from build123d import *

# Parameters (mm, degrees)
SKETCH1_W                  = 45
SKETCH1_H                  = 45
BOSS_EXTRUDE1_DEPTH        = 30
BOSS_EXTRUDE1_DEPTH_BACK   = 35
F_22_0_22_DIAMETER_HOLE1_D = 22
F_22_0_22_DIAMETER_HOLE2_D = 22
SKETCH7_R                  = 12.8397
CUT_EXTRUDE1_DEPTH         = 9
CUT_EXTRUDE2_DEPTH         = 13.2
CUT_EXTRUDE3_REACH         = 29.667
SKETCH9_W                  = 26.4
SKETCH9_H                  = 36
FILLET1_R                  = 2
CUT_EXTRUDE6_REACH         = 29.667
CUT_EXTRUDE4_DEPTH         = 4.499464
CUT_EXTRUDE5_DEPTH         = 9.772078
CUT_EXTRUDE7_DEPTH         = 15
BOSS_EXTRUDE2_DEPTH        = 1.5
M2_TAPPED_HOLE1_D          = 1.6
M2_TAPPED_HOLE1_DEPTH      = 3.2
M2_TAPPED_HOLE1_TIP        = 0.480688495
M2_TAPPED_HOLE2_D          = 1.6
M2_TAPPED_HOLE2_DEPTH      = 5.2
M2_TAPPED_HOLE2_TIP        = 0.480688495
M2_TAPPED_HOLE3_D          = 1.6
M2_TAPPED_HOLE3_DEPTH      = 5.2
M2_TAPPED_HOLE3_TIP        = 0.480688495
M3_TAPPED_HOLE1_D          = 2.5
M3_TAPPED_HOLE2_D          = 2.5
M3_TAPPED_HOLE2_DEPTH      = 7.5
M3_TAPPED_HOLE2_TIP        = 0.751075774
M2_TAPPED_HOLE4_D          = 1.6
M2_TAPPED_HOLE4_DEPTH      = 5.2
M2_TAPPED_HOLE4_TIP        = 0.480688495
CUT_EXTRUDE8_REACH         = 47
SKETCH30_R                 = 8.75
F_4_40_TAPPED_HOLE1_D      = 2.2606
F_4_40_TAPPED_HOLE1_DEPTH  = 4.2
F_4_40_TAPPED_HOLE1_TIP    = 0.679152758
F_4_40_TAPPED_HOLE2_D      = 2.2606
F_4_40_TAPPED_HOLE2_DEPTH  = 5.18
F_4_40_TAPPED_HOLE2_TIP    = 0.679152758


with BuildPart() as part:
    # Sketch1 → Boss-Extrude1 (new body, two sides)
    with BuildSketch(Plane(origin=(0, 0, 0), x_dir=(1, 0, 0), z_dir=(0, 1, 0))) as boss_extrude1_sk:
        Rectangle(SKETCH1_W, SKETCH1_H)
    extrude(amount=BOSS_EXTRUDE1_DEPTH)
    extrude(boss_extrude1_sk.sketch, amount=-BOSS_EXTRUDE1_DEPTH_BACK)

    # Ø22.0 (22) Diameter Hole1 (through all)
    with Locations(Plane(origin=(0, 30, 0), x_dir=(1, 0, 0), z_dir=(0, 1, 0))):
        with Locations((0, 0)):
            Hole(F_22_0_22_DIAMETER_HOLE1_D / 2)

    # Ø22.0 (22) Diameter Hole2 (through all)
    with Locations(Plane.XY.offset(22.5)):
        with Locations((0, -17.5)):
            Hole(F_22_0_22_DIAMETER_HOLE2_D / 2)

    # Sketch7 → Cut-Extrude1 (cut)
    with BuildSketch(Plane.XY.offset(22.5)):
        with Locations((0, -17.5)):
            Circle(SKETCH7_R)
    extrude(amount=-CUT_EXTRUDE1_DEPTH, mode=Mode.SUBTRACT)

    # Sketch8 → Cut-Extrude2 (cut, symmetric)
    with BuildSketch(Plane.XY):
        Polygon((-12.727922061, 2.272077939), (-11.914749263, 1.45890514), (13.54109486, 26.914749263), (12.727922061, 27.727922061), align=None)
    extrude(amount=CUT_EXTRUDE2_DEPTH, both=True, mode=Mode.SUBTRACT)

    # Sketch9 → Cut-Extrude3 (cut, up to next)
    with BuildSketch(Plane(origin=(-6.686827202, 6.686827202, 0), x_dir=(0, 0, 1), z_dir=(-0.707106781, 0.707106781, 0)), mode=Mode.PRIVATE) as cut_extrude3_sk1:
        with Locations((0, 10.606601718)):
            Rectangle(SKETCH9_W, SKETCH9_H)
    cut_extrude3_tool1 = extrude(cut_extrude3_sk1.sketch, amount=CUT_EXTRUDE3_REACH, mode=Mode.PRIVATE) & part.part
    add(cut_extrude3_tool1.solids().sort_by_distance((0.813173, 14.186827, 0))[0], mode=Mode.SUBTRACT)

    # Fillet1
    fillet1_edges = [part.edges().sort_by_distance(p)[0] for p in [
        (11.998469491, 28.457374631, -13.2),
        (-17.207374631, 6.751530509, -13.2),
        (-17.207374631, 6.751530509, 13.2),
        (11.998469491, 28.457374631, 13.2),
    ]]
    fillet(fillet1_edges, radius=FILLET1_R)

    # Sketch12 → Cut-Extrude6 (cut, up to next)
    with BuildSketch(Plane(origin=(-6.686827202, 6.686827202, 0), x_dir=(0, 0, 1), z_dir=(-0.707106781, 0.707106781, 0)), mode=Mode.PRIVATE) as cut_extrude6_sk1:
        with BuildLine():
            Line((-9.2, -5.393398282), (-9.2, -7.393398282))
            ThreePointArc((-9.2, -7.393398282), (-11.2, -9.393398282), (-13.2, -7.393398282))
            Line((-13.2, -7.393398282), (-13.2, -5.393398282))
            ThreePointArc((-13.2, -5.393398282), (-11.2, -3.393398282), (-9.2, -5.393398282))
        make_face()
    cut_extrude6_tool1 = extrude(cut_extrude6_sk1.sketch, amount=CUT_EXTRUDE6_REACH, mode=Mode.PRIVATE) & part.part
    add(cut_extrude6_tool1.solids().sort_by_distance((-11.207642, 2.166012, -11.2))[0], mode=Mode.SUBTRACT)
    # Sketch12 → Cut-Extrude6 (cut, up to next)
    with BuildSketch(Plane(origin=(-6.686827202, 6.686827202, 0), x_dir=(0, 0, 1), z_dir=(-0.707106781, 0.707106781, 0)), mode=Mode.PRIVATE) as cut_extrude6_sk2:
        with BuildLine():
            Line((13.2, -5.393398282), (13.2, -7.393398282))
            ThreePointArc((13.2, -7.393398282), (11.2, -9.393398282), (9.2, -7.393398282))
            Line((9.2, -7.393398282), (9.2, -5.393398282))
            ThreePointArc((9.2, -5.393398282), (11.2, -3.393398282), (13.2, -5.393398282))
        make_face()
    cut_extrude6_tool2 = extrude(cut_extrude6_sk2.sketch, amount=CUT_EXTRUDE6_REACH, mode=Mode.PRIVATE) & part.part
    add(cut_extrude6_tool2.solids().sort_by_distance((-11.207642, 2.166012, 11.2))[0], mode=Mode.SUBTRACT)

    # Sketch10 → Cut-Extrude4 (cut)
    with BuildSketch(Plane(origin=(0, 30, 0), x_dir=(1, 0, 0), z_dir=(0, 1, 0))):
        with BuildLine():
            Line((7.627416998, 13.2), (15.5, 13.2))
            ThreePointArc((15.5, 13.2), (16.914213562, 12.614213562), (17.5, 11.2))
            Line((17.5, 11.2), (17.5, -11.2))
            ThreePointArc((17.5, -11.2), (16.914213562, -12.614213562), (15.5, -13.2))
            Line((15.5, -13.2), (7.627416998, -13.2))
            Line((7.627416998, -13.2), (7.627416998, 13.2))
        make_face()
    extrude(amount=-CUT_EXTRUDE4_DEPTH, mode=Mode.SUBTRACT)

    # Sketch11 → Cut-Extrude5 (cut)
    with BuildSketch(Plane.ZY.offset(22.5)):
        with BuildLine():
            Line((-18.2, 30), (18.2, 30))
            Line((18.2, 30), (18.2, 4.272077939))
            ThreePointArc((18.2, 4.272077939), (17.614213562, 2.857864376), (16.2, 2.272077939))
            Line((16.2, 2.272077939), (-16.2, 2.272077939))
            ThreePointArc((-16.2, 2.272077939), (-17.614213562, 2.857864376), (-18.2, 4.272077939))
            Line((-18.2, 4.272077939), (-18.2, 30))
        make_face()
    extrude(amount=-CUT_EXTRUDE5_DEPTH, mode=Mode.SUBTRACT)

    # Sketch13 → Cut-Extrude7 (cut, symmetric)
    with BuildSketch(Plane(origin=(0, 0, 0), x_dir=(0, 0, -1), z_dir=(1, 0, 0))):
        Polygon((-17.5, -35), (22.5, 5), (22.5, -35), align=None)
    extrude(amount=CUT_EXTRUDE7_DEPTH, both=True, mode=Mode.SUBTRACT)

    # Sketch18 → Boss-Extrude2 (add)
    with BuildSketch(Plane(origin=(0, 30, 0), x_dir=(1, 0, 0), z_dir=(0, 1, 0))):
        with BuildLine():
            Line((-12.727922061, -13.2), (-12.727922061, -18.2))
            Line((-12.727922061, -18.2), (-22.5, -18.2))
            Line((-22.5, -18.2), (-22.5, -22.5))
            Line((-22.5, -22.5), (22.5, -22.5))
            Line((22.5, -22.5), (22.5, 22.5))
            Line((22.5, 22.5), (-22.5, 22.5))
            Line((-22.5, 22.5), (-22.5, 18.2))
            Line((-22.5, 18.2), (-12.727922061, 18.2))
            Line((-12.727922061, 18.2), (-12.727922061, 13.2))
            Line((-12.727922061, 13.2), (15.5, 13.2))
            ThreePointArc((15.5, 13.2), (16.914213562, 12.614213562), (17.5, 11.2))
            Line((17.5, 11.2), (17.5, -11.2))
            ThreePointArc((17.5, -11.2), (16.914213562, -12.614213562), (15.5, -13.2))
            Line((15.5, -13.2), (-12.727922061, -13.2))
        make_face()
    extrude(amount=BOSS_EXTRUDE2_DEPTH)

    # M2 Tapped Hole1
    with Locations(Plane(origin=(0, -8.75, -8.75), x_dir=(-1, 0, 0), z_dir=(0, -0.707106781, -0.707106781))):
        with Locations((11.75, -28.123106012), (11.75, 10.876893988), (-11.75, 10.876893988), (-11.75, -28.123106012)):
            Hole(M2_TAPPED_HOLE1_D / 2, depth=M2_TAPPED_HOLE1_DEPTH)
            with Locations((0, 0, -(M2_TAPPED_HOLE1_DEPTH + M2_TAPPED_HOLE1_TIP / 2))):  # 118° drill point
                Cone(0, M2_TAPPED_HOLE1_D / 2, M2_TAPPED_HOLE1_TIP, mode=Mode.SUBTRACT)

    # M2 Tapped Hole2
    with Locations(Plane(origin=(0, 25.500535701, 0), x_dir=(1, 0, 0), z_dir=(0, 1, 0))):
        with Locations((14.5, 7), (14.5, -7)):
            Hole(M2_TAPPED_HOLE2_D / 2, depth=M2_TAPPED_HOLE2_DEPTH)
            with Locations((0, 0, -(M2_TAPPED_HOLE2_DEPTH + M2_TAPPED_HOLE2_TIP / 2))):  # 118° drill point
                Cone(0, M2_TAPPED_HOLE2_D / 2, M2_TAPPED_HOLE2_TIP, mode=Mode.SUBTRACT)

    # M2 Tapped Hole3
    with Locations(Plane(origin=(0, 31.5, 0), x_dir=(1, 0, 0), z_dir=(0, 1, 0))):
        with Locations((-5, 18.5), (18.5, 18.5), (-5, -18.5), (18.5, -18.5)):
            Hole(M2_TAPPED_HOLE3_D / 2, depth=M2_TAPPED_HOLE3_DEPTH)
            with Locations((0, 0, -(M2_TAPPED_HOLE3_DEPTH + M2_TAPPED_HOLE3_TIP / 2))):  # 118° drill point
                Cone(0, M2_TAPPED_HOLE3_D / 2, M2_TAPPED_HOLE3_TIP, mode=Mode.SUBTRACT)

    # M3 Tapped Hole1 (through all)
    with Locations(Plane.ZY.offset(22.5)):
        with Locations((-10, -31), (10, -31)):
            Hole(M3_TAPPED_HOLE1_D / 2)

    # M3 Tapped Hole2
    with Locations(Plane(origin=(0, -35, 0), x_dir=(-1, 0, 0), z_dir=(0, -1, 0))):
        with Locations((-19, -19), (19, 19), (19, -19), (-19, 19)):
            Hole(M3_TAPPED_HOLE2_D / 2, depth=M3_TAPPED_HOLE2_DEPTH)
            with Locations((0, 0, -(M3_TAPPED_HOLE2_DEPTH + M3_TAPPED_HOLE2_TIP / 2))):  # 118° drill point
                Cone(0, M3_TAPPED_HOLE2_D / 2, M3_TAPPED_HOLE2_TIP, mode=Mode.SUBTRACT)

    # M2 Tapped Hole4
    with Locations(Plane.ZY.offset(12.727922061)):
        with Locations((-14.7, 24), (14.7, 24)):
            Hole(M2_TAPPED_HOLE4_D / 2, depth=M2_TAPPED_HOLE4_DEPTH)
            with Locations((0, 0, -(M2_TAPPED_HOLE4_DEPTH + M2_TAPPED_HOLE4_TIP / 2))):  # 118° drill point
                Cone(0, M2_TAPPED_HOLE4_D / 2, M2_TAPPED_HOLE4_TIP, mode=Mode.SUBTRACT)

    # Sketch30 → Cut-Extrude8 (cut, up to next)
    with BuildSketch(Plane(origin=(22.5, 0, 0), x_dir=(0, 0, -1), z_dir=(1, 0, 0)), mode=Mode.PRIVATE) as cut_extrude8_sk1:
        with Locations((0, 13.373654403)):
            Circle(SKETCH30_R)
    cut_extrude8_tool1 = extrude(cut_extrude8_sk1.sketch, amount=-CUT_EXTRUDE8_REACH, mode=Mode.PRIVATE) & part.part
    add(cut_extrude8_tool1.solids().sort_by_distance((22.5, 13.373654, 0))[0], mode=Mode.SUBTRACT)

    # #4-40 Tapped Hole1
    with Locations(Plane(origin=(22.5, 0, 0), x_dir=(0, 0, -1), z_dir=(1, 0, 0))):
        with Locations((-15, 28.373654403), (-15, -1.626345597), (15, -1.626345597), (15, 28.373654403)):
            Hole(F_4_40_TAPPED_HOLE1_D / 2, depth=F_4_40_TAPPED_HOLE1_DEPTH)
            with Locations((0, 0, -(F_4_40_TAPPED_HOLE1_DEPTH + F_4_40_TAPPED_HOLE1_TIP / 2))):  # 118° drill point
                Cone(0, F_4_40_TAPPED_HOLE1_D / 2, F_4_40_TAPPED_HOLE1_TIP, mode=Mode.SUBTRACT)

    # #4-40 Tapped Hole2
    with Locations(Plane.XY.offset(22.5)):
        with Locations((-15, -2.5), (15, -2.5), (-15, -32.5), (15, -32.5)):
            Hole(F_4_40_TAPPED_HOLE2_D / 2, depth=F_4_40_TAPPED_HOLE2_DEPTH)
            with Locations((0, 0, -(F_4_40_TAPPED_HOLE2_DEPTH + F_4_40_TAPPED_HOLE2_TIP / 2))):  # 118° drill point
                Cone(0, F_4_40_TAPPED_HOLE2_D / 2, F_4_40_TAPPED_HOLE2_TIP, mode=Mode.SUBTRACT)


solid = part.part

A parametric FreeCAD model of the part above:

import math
import FreeCAD as App
import Part
import Sketcher
from FreeCAD import Vector
Q = App.Units.Quantity


def edges_at(feature, points):
    """Names of the edges that pass closest to the given points."""
    edges = feature.Shape.Edges
    near = lambda p: min(range(len(edges)), key=lambda i: edges[i].distToShape(Part.Vertex(*p))[0])
    return sorted({f"Edge{near(p) + 1}" for p in points})


def add_polygon(sketch, points):
    """Adds a closed chain of lines whose ends are joined by coincident constraints."""
    first, n = sketch.GeometryCount, len(points)
    for a, b in zip(points, points[1:] + points[:1]):
        sketch.addGeometry(Part.LineSegment(App.Vector(*a, 0), App.Vector(*b, 0)), False)
    for i in range(n):
        sketch.addConstraint(Sketcher.Constraint("Coincident", first + i, 2, first + (i + 1) % n, 1))

doc = App.newDocument("Part")
body = doc.addObject("PartDesign::Body", "Body")

sketch1 = body.newObject("Sketcher::SketchObject", "Sketch")
sketch1.AttachmentSupport = (doc.getObject("XZ_Plane"), [""])
sketch1.MapMode = "FlatFace"
add_polygon(sketch1, [(-22, -22), (-22, 22), (22, 22), (22, -22)])
sketch1.addConstraint(Sketcher.Constraint("Vertical", 0))
sketch1.addConstraint(Sketcher.Constraint("Horizontal", 1))
sketch1.addConstraint(Sketcher.Constraint("Vertical", 2))
sketch1.addConstraint(Sketcher.Constraint("Horizontal", 3))
sketch1.addConstraint(Sketcher.Constraint("Symmetric", 0, 2, 2, 2, -1, 1))
sketch1.addConstraint(Sketcher.Constraint("Equal", 3, 0))
sketch1.addConstraint(Sketcher.Constraint("DistanceX", 1, 1, 1, 2, Q("45 mm")))
pad1 = body.newObject("PartDesign::Pad", "Pad")
pad1.Profile = sketch1
pad1.Type = "TwoLengths"
pad1.Length = 30
pad1.Length2 = 35
pad1.Reversed = True

sketch2 = body.newObject("Sketcher::SketchObject", "Sketch001")
sketch2.AttachmentSupport = (doc.getObject("XZ_Plane"), [""])
sketch2.MapMode = "FlatFace"
sketch2.AttachmentOffset = App.Placement(Vector(0, 0, -30), App.Rotation())
sketch2.addGeometry(Part.Circle(Vector(0, 0, 0), Vector(0, 0, 1), 11), False)
sketch2.addConstraint(Sketcher.Constraint("Coincident", 0, 3, -1, 1))
sketch2.addConstraint(Sketcher.Constraint("Diameter", 0, Q("22 mm")))
doc.recompute()
hole = body.newObject("PartDesign::Hole", "Hole")
hole.Profile = sketch2
hole.ThreadType = "None"
hole.Diameter = 22
hole.DepthType = "ThroughAll"
hole.Reversed = True

sketch3 = body.newObject("Sketcher::SketchObject", "Sketch002")
sketch3.AttachmentSupport = (doc.getObject("XY_Plane"), [""])
sketch3.MapMode = "FlatFace"
sketch3.AttachmentOffset = App.Placement(Vector(0, 0, 22.5), App.Rotation())
sketch3.addGeometry(Part.Circle(Vector(0, -18, 0), Vector(0, 0, 1), 11), False)
sketch3.addConstraint(Sketcher.Constraint("PointOnObject", 0, 3, -2))
sketch3.addConstraint(Sketcher.Constraint("Diameter", 0, Q("22 mm")))
sketch3.addConstraint(Sketcher.Constraint("DistanceY", 0, 3, -1, 1, Q("17.5 mm")))
doc.recompute()
hole2 = body.newObject("PartDesign::Hole", "Hole001")
hole2.Profile = sketch3
hole2.ThreadType = "None"
hole2.Diameter = 22
hole2.DepthType = "ThroughAll"

sketch4 = body.newObject("Sketcher::SketchObject", "Sketch003")
sketch4.AttachmentSupport = (doc.getObject("XY_Plane"), [""])
sketch4.MapMode = "FlatFace"
sketch4.AttachmentOffset = App.Placement(Vector(0, 0, 22.5), App.Rotation())
sketch4.addGeometry(Part.Circle(Vector(0, -18, 0), Vector(0, 0, 1), 13), False)
sketch4.addConstraint(Sketcher.Constraint("PointOnObject", 0, 3, -2))
sketch4.addConstraint(Sketcher.Constraint("Diameter", 0, Q("25.6794 mm")))
sketch4.addConstraint(Sketcher.Constraint("DistanceY", 0, 3, -1, 1, Q("17.5 mm")))
pocket1 = body.newObject("PartDesign::Pocket", "Pocket")
pocket1.Profile = sketch4
pocket1.Length = 9

sketch5 = body.newObject("Sketcher::SketchObject", "Sketch004")
sketch5.AttachmentSupport = (doc.getObject("XY_Plane"), [""])
sketch5.MapMode = "FlatFace"
add_polygon(sketch5, [(-12.7, 2.3), (-11.9, 1.5), (13.5, 26.9), (12.7, 27.7)])
sketch5.addConstraint(Sketcher.Constraint("Perpendicular", 0, 1))
sketch5.addConstraint(Sketcher.Constraint("Perpendicular", 1, 2))
sketch5.addConstraint(Sketcher.Constraint("Perpendicular", 2, 3))
sketch5.addConstraint(Sketcher.Constraint("Angle", 0, Q("-45 deg")))
sketch5.addConstraint(Sketcher.Constraint("Distance", 1, Q("36 mm")))
sketch5.addConstraint(Sketcher.Constraint("Distance", 0, Q("1.15 mm")))
sketch5.addConstraint(Sketcher.Constraint("DistanceX", 0, 2, -1, 1, Q("11.914749 mm")))
sketch5.addConstraint(Sketcher.Constraint("DistanceY", -1, 1, 1, 2, Q("26.914749 mm")))
pocket2 = body.newObject("PartDesign::Pocket", "Pocket001")
pocket2.Profile = sketch5
pocket2.Length = 26.4
pocket2.Midplane = True

sketch6 = body.newObject("Sketcher::SketchObject", "Sketch005")
sketch6.Placement = App.Placement(Vector(-6.686827, 6.686827, 0), App.Rotation(Vector(0, 0, 1), Vector(0.707106781, 0.707106781, 0), Vector(-0.707106781, 0.707106781, 0), "ZXY"))
add_polygon(sketch6, [(-13, 29), (-13, -7), (13, -7), (13, 29)])
sketch6.addConstraint(Sketcher.Constraint("Vertical", 0))
sketch6.addConstraint(Sketcher.Constraint("Horizontal", 1))
sketch6.addConstraint(Sketcher.Constraint("Vertical", 2))
sketch6.addConstraint(Sketcher.Constraint("Horizontal", 3))
sketch6.addConstraint(Sketcher.Constraint("DistanceY", 0, 2, 0, 1, Q("36 mm")))
sketch6.addConstraint(Sketcher.Constraint("DistanceX", 1, 1, 1, 2, Q("26.4 mm")))
sketch6.addConstraint(Sketcher.Constraint("DistanceX", 0, 2, -1, 1, Q("13.2 mm")))
sketch6.addConstraint(Sketcher.Constraint("DistanceY", 0, 2, -1, 1, Q("7.393398 mm")))
pocket3 = body.newObject("PartDesign::Pocket", "Pocket002")
pocket3.Profile = sketch6
pocket3.Type = "UpToFirst"
pocket3.Reversed = True
doc.recompute()

fillet = body.newObject("PartDesign::Fillet", "Fillet")
fillet.Base = (pocket3, edges_at(pocket3, [
    (11.592, 28.864, -13.2),
    (-17.614, 7.158, -13.2),
    (-17.614, 7.158, 13.2),
    (11.592, 28.864, 13.2),
]))
fillet.Radius = 2

sketch7 = body.newObject("Sketcher::SketchObject", "Sketch006")
sketch7.Placement = App.Placement(Vector(-6.686827, 6.686827, 0), App.Rotation(Vector(0, 0, 1), Vector(0.707106781, 0.707106781, 0), Vector(-0.707106781, 0.707106781, 0), "ZXY"))
sketch7.addGeometry(Part.LineSegment(Vector(-9.2, -7.4, 0), Vector(-9.2, -5.4, 0)), False)
sketch7.addGeometry(Part.ArcOfCircle(Part.Circle(Vector(-11.2, -5.4, 0), Vector(0, 0, 1), 2), math.radians(0), math.radians(180)), False)
sketch7.addGeometry(Part.LineSegment(Vector(-13.2, -5.4, 0), Vector(-13.2, -7.4, 0)), False)
sketch7.addGeometry(Part.ArcOfCircle(Part.Circle(Vector(-11.2, -7.4, 0), Vector(0, 0, 1), 2), math.radians(180), math.radians(360)), False)
sketch7.addConstraint(Sketcher.Constraint("Tangent", 0, 2, 1, 1))
sketch7.addConstraint(Sketcher.Constraint("Tangent", 1, 2, 2, 1))
sketch7.addConstraint(Sketcher.Constraint("Tangent", 2, 2, 3, 1))
sketch7.addConstraint(Sketcher.Constraint("Tangent", 3, 2, 0, 1))
sketch7.addConstraint(Sketcher.Constraint("Vertical", 0))
sketch7.addConstraint(Sketcher.Constraint("Vertical", 2))
sketch7.addConstraint(Sketcher.Constraint("Radius", 1, Q("2 mm")))
sketch7.addConstraint(Sketcher.Constraint("DistanceY", 0, 1, 0, 2, Q("2 mm")))
sketch7.addConstraint(Sketcher.Constraint("DistanceX", 1, 3, -1, 1, Q("11.2 mm")))
sketch7.addConstraint(Sketcher.Constraint("DistanceY", 1, 3, -1, 1, Q("5.393398 mm")))
pocket4 = body.newObject("PartDesign::Pocket", "Pocket003")
pocket4.Profile = sketch7
pocket4.Length = 16.969805
pocket4.Reversed = True

sketch8 = body.newObject("Sketcher::SketchObject", "Sketch007")
sketch8.Placement = App.Placement(Vector(-6.686827, 6.686827, 0), App.Rotation(Vector(0, 0, 1), Vector(0.707106781, 0.707106781, 0), Vector(-0.707106781, 0.707106781, 0), "ZXY"))
sketch8.addGeometry(Part.LineSegment(Vector(13.2, -7.4, 0), Vector(13.2, -5.4, 0)), False)
sketch8.addGeometry(Part.ArcOfCircle(Part.Circle(Vector(11.2, -5.4, 0), Vector(0, 0, 1), 2), math.radians(0), math.radians(180)), False)
sketch8.addGeometry(Part.LineSegment(Vector(9.2, -5.4, 0), Vector(9.2, -7.4, 0)), False)
sketch8.addGeometry(Part.ArcOfCircle(Part.Circle(Vector(11.2, -7.4, 0), Vector(0, 0, 1), 2), math.radians(180), math.radians(360)), False)
sketch8.addConstraint(Sketcher.Constraint("Tangent", 0, 2, 1, 1))
sketch8.addConstraint(Sketcher.Constraint("Tangent", 1, 2, 2, 1))
sketch8.addConstraint(Sketcher.Constraint("Tangent", 2, 2, 3, 1))
sketch8.addConstraint(Sketcher.Constraint("Tangent", 3, 2, 0, 1))
sketch8.addConstraint(Sketcher.Constraint("Vertical", 0))
sketch8.addConstraint(Sketcher.Constraint("Vertical", 2))
sketch8.addConstraint(Sketcher.Constraint("Radius", 1, Q("2 mm")))
sketch8.addConstraint(Sketcher.Constraint("DistanceY", 0, 1, 0, 2, Q("2 mm")))
sketch8.addConstraint(Sketcher.Constraint("DistanceX", -1, 1, 1, 3, Q("11.2 mm")))
sketch8.addConstraint(Sketcher.Constraint("DistanceY", 1, 3, -1, 1, Q("5.393398 mm")))
pocket5 = body.newObject("PartDesign::Pocket", "Pocket004")
pocket5.Profile = sketch8
pocket5.Length = 16.969805
pocket5.Reversed = True

sketch9 = body.newObject("Sketcher::SketchObject", "Sketch008")
sketch9.AttachmentSupport = (doc.getObject("XZ_Plane"), [""])
sketch9.MapMode = "FlatFace"
sketch9.AttachmentOffset = App.Placement(Vector(0, 0, -30), App.Rotation())
sketch9.addGeometry(Part.LineSegment(Vector(15.5, -13.2, 0), Vector(7.6, -13.2, 0)), False)
sketch9.addGeometry(Part.LineSegment(Vector(7.6, -13.2, 0), Vector(7.6, 13.2, 0)), False)
sketch9.addGeometry(Part.LineSegment(Vector(7.6, 13.2, 0), Vector(15.5, 13.2, 0)), False)
sketch9.addGeometry(Part.ArcOfCircle(Part.Circle(Vector(15.5, 11.2, 0), Vector(0, 0, 1), 2), math.radians(0), math.radians(90)), False)
sketch9.addGeometry(Part.LineSegment(Vector(17.5, 11.2, 0), Vector(17.5, -11.2, 0)), False)
sketch9.addGeometry(Part.ArcOfCircle(Part.Circle(Vector(15.5, -11.2, 0), Vector(0, 0, 1), 2), math.radians(-90), math.radians(0)), False)
sketch9.addConstraint(Sketcher.Constraint("Coincident", 0, 2, 1, 1))
sketch9.addConstraint(Sketcher.Constraint("Coincident", 1, 2, 2, 1))
sketch9.addConstraint(Sketcher.Constraint("Tangent", 2, 2, 3, 2))
sketch9.addConstraint(Sketcher.Constraint("Tangent", 3, 1, 4, 1))
sketch9.addConstraint(Sketcher.Constraint("Tangent", 4, 2, 5, 2))
sketch9.addConstraint(Sketcher.Constraint("Tangent", 5, 1, 0, 1))
sketch9.addConstraint(Sketcher.Constraint("Horizontal", 0))
sketch9.addConstraint(Sketcher.Constraint("Vertical", 1))
sketch9.addConstraint(Sketcher.Constraint("Horizontal", 2))
sketch9.addConstraint(Sketcher.Constraint("Vertical", 4))
sketch9.addConstraint(Sketcher.Constraint("Equal", 3, 5))
sketch9.addConstraint(Sketcher.Constraint("Radius", 3, Q("2 mm")))
sketch9.addConstraint(Sketcher.Constraint("DistanceY", 1, 1, 1, 2, Q("26.4 mm")))
sketch9.addConstraint(Sketcher.Constraint("DistanceX", -1, 1, 3, 3, Q("15.5 mm")))
sketch9.addConstraint(Sketcher.Constraint("DistanceY", -1, 1, 3, 3, Q("11.2 mm")))
sketch9.addConstraint(Sketcher.Constraint("DistanceX", 0, 2, 0, 1, Q("7.872583 mm")))
pocket6 = body.newObject("PartDesign::Pocket", "Pocket005")
pocket6.Profile = sketch9
pocket6.Length = 4.499464
pocket6.Reversed = True

sketch10 = body.newObject("Sketcher::SketchObject", "Sketch009")
sketch10.AttachmentSupport = (doc.getObject("YZ_Plane"), [""])
sketch10.MapMode = "FlatFace"
sketch10.AttachmentOffset = App.Placement(Vector(0, 0, -22.5), App.Rotation())
sketch10.addGeometry(Part.LineSegment(Vector(30, 18.2, 0), Vector(30, -18.2, 0)), False)
sketch10.addGeometry(Part.LineSegment(Vector(30, -18.2, 0), Vector(4.3, -18.2, 0)), False)
sketch10.addGeometry(Part.ArcOfCircle(Part.Circle(Vector(4.3, -16.2, 0), Vector(0, 0, 1), 2), math.radians(180), math.radians(270)), False)
sketch10.addGeometry(Part.LineSegment(Vector(2.3, -16.2, 0), Vector(2.3, 16.2, 0)), False)
sketch10.addGeometry(Part.ArcOfCircle(Part.Circle(Vector(4.3, 16.2, 0), Vector(0, 0, 1), 2), math.radians(90), math.radians(180)), False)
sketch10.addGeometry(Part.LineSegment(Vector(4.3, 18.2, 0), Vector(30, 18.2, 0)), False)
sketch10.addConstraint(Sketcher.Constraint("Coincident", 0, 2, 1, 1))
sketch10.addConstraint(Sketcher.Constraint("Tangent", 1, 2, 2, 2))
sketch10.addConstraint(Sketcher.Constraint("Tangent", 2, 1, 3, 1))
sketch10.addConstraint(Sketcher.Constraint("Tangent", 3, 2, 4, 2))
sketch10.addConstraint(Sketcher.Constraint("Tangent", 4, 1, 5, 1))
sketch10.addConstraint(Sketcher.Constraint("Coincident", 5, 2, 0, 1))
sketch10.addConstraint(Sketcher.Constraint("Vertical", 0))
sketch10.addConstraint(Sketcher.Constraint("Horizontal", 1))
sketch10.addConstraint(Sketcher.Constraint("Vertical", 3))
sketch10.addConstraint(Sketcher.Constraint("Horizontal", 5))
sketch10.addConstraint(Sketcher.Constraint("Equal", 2, 4))
sketch10.addConstraint(Sketcher.Constraint("Radius", 2, Q("2 mm")))
sketch10.addConstraint(Sketcher.Constraint("DistanceY", 0, 2, 0, 1, Q("36.4 mm")))
sketch10.addConstraint(Sketcher.Constraint("DistanceX", -1, 1, 0, 2, Q("30 mm")))
sketch10.addConstraint(Sketcher.Constraint("DistanceY", 2, 3, -1, 1, Q("16.2 mm")))
sketch10.addConstraint(Sketcher.Constraint("DistanceX", 1, 2, 1, 1, Q("25.727922 mm")))
pocket7 = body.newObject("PartDesign::Pocket", "Pocket006")
pocket7.Profile = sketch10
pocket7.Length = 9.772078
pocket7.Reversed = True

sketch11 = body.newObject("Sketcher::SketchObject", "Sketch010")
sketch11.AttachmentSupport = (doc.getObject("YZ_Plane"), [""])
sketch11.MapMode = "FlatFace"
add_polygon(sketch11, [(5, -22), (-35, 18), (-35, -22)])
sketch11.addConstraint(Sketcher.Constraint("Vertical", 1))
sketch11.addConstraint(Sketcher.Constraint("Horizontal", 2))
sketch11.addConstraint(Sketcher.Constraint("Equal", 2, 1))
sketch11.addConstraint(Sketcher.Constraint("DistanceX", 2, 1, 2, 2, Q("40 mm")))
sketch11.addConstraint(Sketcher.Constraint("DistanceX", 0, 2, -1, 1, Q("35 mm")))
sketch11.addConstraint(Sketcher.Constraint("DistanceY", -1, 1, 0, 2, Q("17.5 mm")))
pocket8 = body.newObject("PartDesign::Pocket", "Pocket007")
pocket8.Profile = sketch11
pocket8.Length = 30
pocket8.Midplane = True

sketch12 = body.newObject("Sketcher::SketchObject", "Sketch011")
sketch12.AttachmentSupport = (doc.getObject("XZ_Plane"), [""])
sketch12.MapMode = "FlatFace"
sketch12.AttachmentOffset = App.Placement(Vector(0, 0, -30), App.Rotation())
sketch12.addGeometry(Part.LineSegment(Vector(-12.7, 13.2, 0), Vector(-12.7, 18.2, 0)), False)
sketch12.addGeometry(Part.LineSegment(Vector(-12.7, 18.2, 0), Vector(-22.5, 18.2, 0)), False)
sketch12.addGeometry(Part.LineSegment(Vector(-22.5, 18.2, 0), Vector(-22.5, 22.5, 0)), False)
sketch12.addGeometry(Part.LineSegment(Vector(-22.5, 22.5, 0), Vector(22.5, 22.5, 0)), False)
sketch12.addGeometry(Part.LineSegment(Vector(22.5, 22.5, 0), Vector(22.5, -22.5, 0)), False)
sketch12.addGeometry(Part.LineSegment(Vector(22.5, -22.5, 0), Vector(-22.5, -22.5, 0)), False)
sketch12.addGeometry(Part.LineSegment(Vector(-22.5, -22.5, 0), Vector(-22.5, -18.2, 0)), False)
sketch12.addGeometry(Part.LineSegment(Vector(-22.5, -18.2, 0), Vector(-12.7, -18.2, 0)), False)
sketch12.addGeometry(Part.LineSegment(Vector(-12.7, -18.2, 0), Vector(-12.7, -13.2, 0)), False)
sketch12.addGeometry(Part.LineSegment(Vector(-12.7, -13.2, 0), Vector(15.5, -13.2, 0)), False)
sketch12.addGeometry(Part.ArcOfCircle(Part.Circle(Vector(15.5, -11.2, 0), Vector(0, 0, 1), 2), math.radians(-90), math.radians(0)), False)
sketch12.addGeometry(Part.LineSegment(Vector(17.5, -11.2, 0), Vector(17.5, 11.2, 0)), False)
sketch12.addGeometry(Part.ArcOfCircle(Part.Circle(Vector(15.5, 11.2, 0), Vector(0, 0, 1), 2), math.radians(0), math.radians(90)), False)
sketch12.addGeometry(Part.LineSegment(Vector(15.5, 13.2, 0), Vector(-12.7, 13.2, 0)), False)
sketch12.addConstraint(Sketcher.Constraint("Coincident", 0, 2, 1, 1))
sketch12.addConstraint(Sketcher.Constraint("Coincident", 1, 2, 2, 1))
sketch12.addConstraint(Sketcher.Constraint("Coincident", 2, 2, 3, 1))
sketch12.addConstraint(Sketcher.Constraint("Coincident", 3, 2, 4, 1))
sketch12.addConstraint(Sketcher.Constraint("Coincident", 4, 2, 5, 1))
sketch12.addConstraint(Sketcher.Constraint("Coincident", 5, 2, 6, 1))
sketch12.addConstraint(Sketcher.Constraint("Coincident", 6, 2, 7, 1))
sketch12.addConstraint(Sketcher.Constraint("Coincident", 7, 2, 8, 1))
sketch12.addConstraint(Sketcher.Constraint("Coincident", 8, 2, 9, 1))
sketch12.addConstraint(Sketcher.Constraint("Tangent", 9, 2, 10, 1))
sketch12.addConstraint(Sketcher.Constraint("Tangent", 10, 2, 11, 1))
sketch12.addConstraint(Sketcher.Constraint("Tangent", 11, 2, 12, 1))
sketch12.addConstraint(Sketcher.Constraint("Tangent", 12, 2, 13, 1))
sketch12.addConstraint(Sketcher.Constraint("Coincident", 13, 2, 0, 1))
sketch12.addConstraint(Sketcher.Constraint("Vertical", 0))
sketch12.addConstraint(Sketcher.Constraint("Horizontal", 1))
sketch12.addConstraint(Sketcher.Constraint("Vertical", 2))
sketch12.addConstraint(Sketcher.Constraint("Horizontal", 3))
sketch12.addConstraint(Sketcher.Constraint("Vertical", 4))
sketch12.addConstraint(Sketcher.Constraint("Horizontal", 5))
sketch12.addConstraint(Sketcher.Constraint("Vertical", 6))
sketch12.addConstraint(Sketcher.Constraint("Horizontal", 7))
sketch12.addConstraint(Sketcher.Constraint("Vertical", 8))
sketch12.addConstraint(Sketcher.Constraint("Horizontal", 9))
sketch12.addConstraint(Sketcher.Constraint("Vertical", 11))
sketch12.addConstraint(Sketcher.Constraint("Horizontal", 13))
sketch12.addConstraint(Sketcher.Constraint("Equal", 10, 12))
sketch12.addConstraint(Sketcher.Constraint("Symmetric", 2, 2, 4, 2, -1, 1))
sketch12.addConstraint(Sketcher.Constraint("Symmetric", 1, 2, 6, 2, -1))
sketch12.addConstraint(Sketcher.Constraint("Symmetric", 8, 2, 13, 2, -1))
sketch12.addConstraint(Sketcher.Constraint("Equal", 5, 4))
sketch12.addConstraint(Sketcher.Constraint("Radius", 10, Q("2 mm")))
sketch12.addConstraint(Sketcher.Constraint("DistanceX", 3, 1, 3, 2, Q("45 mm")))
sketch12.addConstraint(Sketcher.Constraint("DistanceY", 0, 1, 0, 2, Q("5 mm")))
sketch12.addConstraint(Sketcher.Constraint("DistanceY", 2, 1, 2, 2, Q("4.3 mm")))
sketch12.addConstraint(Sketcher.Constraint("DistanceX", 1, 2, 12, 3, Q("38 mm")))
sketch12.addConstraint(Sketcher.Constraint("DistanceX", 1, 2, 1, 1, Q("9.772078 mm")))
pad2 = body.newObject("PartDesign::Pad", "Pad001")
pad2.Profile = sketch12
pad2.Length = 1.5
pad2.Reversed = True

sketch13 = body.newObject("Sketcher::SketchObject", "Sketch012")
sketch13.Placement = App.Placement(Vector(0, -8.75, -8.75), App.Rotation(Vector(-1, 0, 0), Vector(0, 0.707106781, -0.707106781), Vector(0, -0.707106781, -0.707106781), "ZXY"))
sketch13.addGeometry(Part.Circle(Vector(11.8, -28.1, 0), Vector(0, 0, 1), 0.8), False)
sketch13.addGeometry(Part.Circle(Vector(11.8, 10.9, 0), Vector(0, 0, 1), 0.8), False)
sketch13.addGeometry(Part.Circle(Vector(-11.8, 10.9, 0), Vector(0, 0, 1), 0.8), False)
sketch13.addGeometry(Part.Circle(Vector(-11.8, -28.1, 0), Vector(0, 0, 1), 0.8), False)
sketch13.addConstraint(Sketcher.Constraint("Equal", 0, 1))
sketch13.addConstraint(Sketcher.Constraint("Equal", 1, 2))
sketch13.addConstraint(Sketcher.Constraint("Equal", 2, 3))
sketch13.addConstraint(Sketcher.Constraint("Symmetric", 1, 3, 2, 3, -2))
sketch13.addConstraint(Sketcher.Constraint("Symmetric", 0, 3, 3, 3, -2))
sketch13.addConstraint(Sketcher.Constraint("Vertical", 0, 3, 1, 3))
sketch13.addConstraint(Sketcher.Constraint("Diameter", 0, Q("1.6 mm")))
sketch13.addConstraint(Sketcher.Constraint("DistanceY", 0, 3, 1, 3, Q("39 mm")))
sketch13.addConstraint(Sketcher.Constraint("DistanceX", 2, 3, 1, 3, Q("23.5 mm")))
sketch13.addConstraint(Sketcher.Constraint("DistanceY", 0, 3, -1, 1, Q("28.123106 mm")))
doc.recompute()
hole3 = body.newObject("PartDesign::Hole", "Hole002")
hole3.Profile = sketch13
hole3.ThreadType = "None"
hole3.Diameter = 1.6
hole3.DepthType = "Dimension"
hole3.Depth = 3.2
hole3.DrillPoint = "Angled"
hole3.DrillPointAngle = 118

sketch14 = body.newObject("Sketcher::SketchObject", "Sketch013")
sketch14.AttachmentSupport = (doc.getObject("XZ_Plane"), [""])
sketch14.MapMode = "FlatFace"
sketch14.AttachmentOffset = App.Placement(Vector(0, 0, -25.500536), App.Rotation())
sketch14.addGeometry(Part.Circle(Vector(14.5, -7, 0), Vector(0, 0, 1), 0.8), False)
sketch14.addGeometry(Part.Circle(Vector(14.5, 7, 0), Vector(0, 0, 1), 0.8), False)
sketch14.addConstraint(Sketcher.Constraint("Equal", 0, 1))
sketch14.addConstraint(Sketcher.Constraint("Symmetric", 0, 3, 1, 3, -1))
sketch14.addConstraint(Sketcher.Constraint("Diameter", 0, Q("1.6 mm")))
sketch14.addConstraint(Sketcher.Constraint("DistanceY", 0, 3, -1, 1, Q("7 mm")))
sketch14.addConstraint(Sketcher.Constraint("DistanceX", -1, 1, 0, 3, Q("14.5 mm")))
doc.recompute()
hole4 = body.newObject("PartDesign::Hole", "Hole003")
hole4.Profile = sketch14
hole4.ThreadType = "None"
hole4.Diameter = 1.6
hole4.DepthType = "Dimension"
hole4.Depth = 5.2
hole4.DrillPoint = "Angled"
hole4.DrillPointAngle = 118
hole4.Reversed = True

sketch15 = body.newObject("Sketcher::SketchObject", "Sketch014")
sketch15.AttachmentSupport = (doc.getObject("XZ_Plane"), [""])
sketch15.MapMode = "FlatFace"
sketch15.AttachmentOffset = App.Placement(Vector(0, 0, -31.5), App.Rotation())
sketch15.addGeometry(Part.Circle(Vector(-5, -18.5, 0), Vector(0, 0, 1), 0.8), False)
sketch15.addGeometry(Part.Circle(Vector(18.5, -18.5, 0), Vector(0, 0, 1), 0.8), False)
sketch15.addGeometry(Part.Circle(Vector(-5, 18.5, 0), Vector(0, 0, 1), 0.8), False)
sketch15.addGeometry(Part.Circle(Vector(18.5, 18.5, 0), Vector(0, 0, 1), 0.8), False)
sketch15.addConstraint(Sketcher.Constraint("Equal", 0, 1))
sketch15.addConstraint(Sketcher.Constraint("Equal", 1, 2))
sketch15.addConstraint(Sketcher.Constraint("Equal", 2, 3))
sketch15.addConstraint(Sketcher.Constraint("Symmetric", 0, 3, 2, 3, -1))
sketch15.addConstraint(Sketcher.Constraint("Symmetric", 1, 3, 3, 3, -1))
sketch15.addConstraint(Sketcher.Constraint("Horizontal", 0, 3, 1, 3))
sketch15.addConstraint(Sketcher.Constraint("Diameter", 0, Q("1.6 mm")))
sketch15.addConstraint(Sketcher.Constraint("DistanceX", 0, 3, -1, 1, Q("5 mm")))
sketch15.addConstraint(Sketcher.Constraint("DistanceY", 0, 3, 2, 3, Q("37 mm")))
sketch15.addConstraint(Sketcher.Constraint("DistanceX", -1, 1, 1, 3, Q("18.5 mm")))
doc.recompute()
hole5 = body.newObject("PartDesign::Hole", "Hole004")
hole5.Profile = sketch15
hole5.ThreadType = "None"
hole5.Diameter = 1.6
hole5.DepthType = "Dimension"
hole5.Depth = 5.2
hole5.DrillPoint = "Angled"
hole5.DrillPointAngle = 118
hole5.Reversed = True

sketch16 = body.newObject("Sketcher::SketchObject", "Sketch015")
sketch16.AttachmentSupport = (doc.getObject("YZ_Plane"), [""])
sketch16.MapMode = "FlatFace"
sketch16.AttachmentOffset = App.Placement(Vector(0, 0, -22.5), App.Rotation())
sketch16.addGeometry(Part.Circle(Vector(-31, -10, 0), Vector(0, 0, 1), 1.2), False)
sketch16.addGeometry(Part.Circle(Vector(-31, 10, 0), Vector(0, 0, 1), 1.2), False)
sketch16.addConstraint(Sketcher.Constraint("Equal", 0, 1))
sketch16.addConstraint(Sketcher.Constraint("Symmetric", 0, 3, 1, 3, -1))
sketch16.addConstraint(Sketcher.Constraint("Diameter", 0, Q("2.5 mm")))
sketch16.addConstraint(Sketcher.Constraint("DistanceX", 0, 3, -1, 1, Q("31 mm")))
sketch16.addConstraint(Sketcher.Constraint("DistanceY", 0, 3, -1, 1, Q("10 mm")))
doc.recompute()
hole6 = body.newObject("PartDesign::Hole", "Hole005")
hole6.Profile = sketch16
hole6.ThreadType = "None"
hole6.Diameter = 2.5
hole6.DepthType = "ThroughAll"
hole6.Reversed = True

sketch17 = body.newObject("Sketcher::SketchObject", "Sketch016")
sketch17.AttachmentSupport = (doc.getObject("XZ_Plane"), [""])
sketch17.MapMode = "FlatFace"
sketch17.AttachmentOffset = App.Placement(Vector(0, 0, 35), App.Rotation())
sketch17.addGeometry(Part.Circle(Vector(19, 19, 0), Vector(0, 0, 1), 1.2), False)
sketch17.addGeometry(Part.Circle(Vector(-19, -19, 0), Vector(0, 0, 1), 1.2), False)
sketch17.addGeometry(Part.Circle(Vector(-19, 19, 0), Vector(0, 0, 1), 1.2), False)
sketch17.addGeometry(Part.Circle(Vector(19, -19, 0), Vector(0, 0, 1), 1.2), False)
sketch17.addConstraint(Sketcher.Constraint("Equal", 0, 1))
sketch17.addConstraint(Sketcher.Constraint("Equal", 1, 2))
sketch17.addConstraint(Sketcher.Constraint("Equal", 2, 3))
sketch17.addConstraint(Sketcher.Constraint("Symmetric", 0, 3, 1, 3, -1, 1))
sketch17.addConstraint(Sketcher.Constraint("Symmetric", 2, 3, 3, 3, -1, 1))
sketch17.addConstraint(Sketcher.Constraint("Symmetric", 0, 3, 2, 3, -2))
sketch17.addConstraint(Sketcher.Constraint("Diameter", 0, Q("2.5 mm")))
sketch17.addConstraint(Sketcher.Constraint("DistanceX", -1, 1, 0, 3, Q("19 mm")))
sketch17.addConstraint(Sketcher.Constraint("DistanceY", -1, 1, 0, 3, Q("19 mm")))
doc.recompute()
hole7 = body.newObject("PartDesign::Hole", "Hole006")
hole7.Profile = sketch17
hole7.ThreadType = "None"
hole7.Diameter = 2.5
hole7.DepthType = "Dimension"
hole7.Depth = 7.5
hole7.DrillPoint = "Angled"
hole7.DrillPointAngle = 118

sketch18 = body.newObject("Sketcher::SketchObject", "Sketch017")
sketch18.AttachmentSupport = (doc.getObject("YZ_Plane"), [""])
sketch18.MapMode = "FlatFace"
sketch18.AttachmentOffset = App.Placement(Vector(0, 0, -12.727922), App.Rotation())
sketch18.addGeometry(Part.Circle(Vector(24, -14.7, 0), Vector(0, 0, 1), 0.8), False)
sketch18.addGeometry(Part.Circle(Vector(24, 14.7, 0), Vector(0, 0, 1), 0.8), False)
sketch18.addConstraint(Sketcher.Constraint("Equal", 0, 1))
sketch18.addConstraint(Sketcher.Constraint("Symmetric", 0, 3, 1, 3, -1))
sketch18.addConstraint(Sketcher.Constraint("Diameter", 0, Q("1.6 mm")))
sketch18.addConstraint(Sketcher.Constraint("DistanceX", -1, 1, 0, 3, Q("24 mm")))
sketch18.addConstraint(Sketcher.Constraint("DistanceY", 0, 3, -1, 1, Q("14.7 mm")))
doc.recompute()
hole8 = body.newObject("PartDesign::Hole", "Hole007")
hole8.Profile = sketch18
hole8.ThreadType = "None"
hole8.Diameter = 1.6
hole8.DepthType = "Dimension"
hole8.Depth = 5.2
hole8.DrillPoint = "Angled"
hole8.DrillPointAngle = 118
hole8.Reversed = True

sketch19 = body.newObject("Sketcher::SketchObject", "Sketch018")
sketch19.AttachmentSupport = (doc.getObject("YZ_Plane"), [""])
sketch19.MapMode = "FlatFace"
sketch19.AttachmentOffset = App.Placement(Vector(0, 0, 22.5), App.Rotation())
sketch19.addGeometry(Part.Circle(Vector(13, 0, 0), Vector(0, 0, 1), 9), False)
sketch19.addConstraint(Sketcher.Constraint("PointOnObject", 0, 3, -1))
sketch19.addConstraint(Sketcher.Constraint("Diameter", 0, Q("17.5 mm")))
sketch19.addConstraint(Sketcher.Constraint("DistanceX", -1, 1, 0, 3, Q("13.373654 mm")))
pocket9 = body.newObject("PartDesign::Pocket", "Pocket008")
pocket9.Profile = sketch19
pocket9.Type = "UpToFirst"

sketch20 = body.newObject("Sketcher::SketchObject", "Sketch019")
sketch20.AttachmentSupport = (doc.getObject("YZ_Plane"), [""])
sketch20.MapMode = "FlatFace"
sketch20.AttachmentOffset = App.Placement(Vector(0, 0, 22.5), App.Rotation())
sketch20.addGeometry(Part.Circle(Vector(28.4, 15, 0), Vector(0, 0, 1), 1.1), False)
sketch20.addGeometry(Part.Circle(Vector(-1.6, 15, 0), Vector(0, 0, 1), 1.1), False)
sketch20.addGeometry(Part.Circle(Vector(-1.6, -15, 0), Vector(0, 0, 1), 1.1), False)
sketch20.addGeometry(Part.Circle(Vector(28.4, -15, 0), Vector(0, 0, 1), 1.1), False)
sketch20.addConstraint(Sketcher.Constraint("Equal", 0, 1))
sketch20.addConstraint(Sketcher.Constraint("Equal", 1, 2))
sketch20.addConstraint(Sketcher.Constraint("Equal", 2, 3))
sketch20.addConstraint(Sketcher.Constraint("Symmetric", 1, 3, 2, 3, -1))
sketch20.addConstraint(Sketcher.Constraint("Symmetric", 0, 3, 3, 3, -1))
sketch20.addConstraint(Sketcher.Constraint("Horizontal", 0, 3, 1, 3))
sketch20.addConstraint(Sketcher.Constraint("DistanceY", -1, 1, 0, 3, Q("15 mm")))
sketch20.addConstraint(Sketcher.Constraint("DistanceX", 1, 3, 0, 3, Q("30 mm")))
sketch20.addConstraint(Sketcher.Constraint("Diameter", 0, Q("2.2606 mm")))
sketch20.addConstraint(Sketcher.Constraint("DistanceX", -1, 1, 0, 3, Q("28.373654 mm")))
doc.recompute()
hole9 = body.newObject("PartDesign::Hole", "Hole008")
hole9.Profile = sketch20
hole9.ThreadType = "None"
hole9.Diameter = 2.2606
hole9.DepthType = "Dimension"
hole9.Depth = 4.2
hole9.DrillPoint = "Angled"
hole9.DrillPointAngle = 118

sketch21 = body.newObject("Sketcher::SketchObject", "Sketch020")
sketch21.AttachmentSupport = (doc.getObject("XY_Plane"), [""])
sketch21.MapMode = "FlatFace"
sketch21.AttachmentOffset = App.Placement(Vector(0, 0, 22.5), App.Rotation())
sketch21.addGeometry(Part.Circle(Vector(-15, -2.5, 0), Vector(0, 0, 1), 1.1), False)
sketch21.addGeometry(Part.Circle(Vector(15, -2.5, 0), Vector(0, 0, 1), 1.1), False)
sketch21.addGeometry(Part.Circle(Vector(-15, -32.5, 0), Vector(0, 0, 1), 1.1), False)
sketch21.addGeometry(Part.Circle(Vector(15, -32.5, 0), Vector(0, 0, 1), 1.1), False)
sketch21.addConstraint(Sketcher.Constraint("Equal", 0, 1))
sketch21.addConstraint(Sketcher.Constraint("Equal", 1, 2))
sketch21.addConstraint(Sketcher.Constraint("Equal", 2, 3))
sketch21.addConstraint(Sketcher.Constraint("Symmetric", 0, 3, 1, 3, -2))
sketch21.addConstraint(Sketcher.Constraint("Symmetric", 2, 3, 3, 3, -2))
sketch21.addConstraint(Sketcher.Constraint("Vertical", 0, 3, 2, 3))
sketch21.addConstraint(Sketcher.Constraint("DistanceX", 0, 3, -1, 1, Q("15 mm")))
sketch21.addConstraint(Sketcher.Constraint("DistanceY", 2, 3, 0, 3, Q("30 mm")))
sketch21.addConstraint(Sketcher.Constraint("Diameter", 0, Q("2.2606 mm")))
sketch21.addConstraint(Sketcher.Constraint("DistanceY", 0, 3, -1, 1, Q("2.5 mm")))
doc.recompute()
hole10 = body.newObject("PartDesign::Hole", "Hole009")
hole10.Profile = sketch21
hole10.ThreadType = "None"
hole10.Diameter = 2.2606
hole10.DepthType = "Dimension"
hole10.Depth = 5.18
hole10.DrillPoint = "Angled"
hole10.DrillPointAngle = 118

doc.recompute()
